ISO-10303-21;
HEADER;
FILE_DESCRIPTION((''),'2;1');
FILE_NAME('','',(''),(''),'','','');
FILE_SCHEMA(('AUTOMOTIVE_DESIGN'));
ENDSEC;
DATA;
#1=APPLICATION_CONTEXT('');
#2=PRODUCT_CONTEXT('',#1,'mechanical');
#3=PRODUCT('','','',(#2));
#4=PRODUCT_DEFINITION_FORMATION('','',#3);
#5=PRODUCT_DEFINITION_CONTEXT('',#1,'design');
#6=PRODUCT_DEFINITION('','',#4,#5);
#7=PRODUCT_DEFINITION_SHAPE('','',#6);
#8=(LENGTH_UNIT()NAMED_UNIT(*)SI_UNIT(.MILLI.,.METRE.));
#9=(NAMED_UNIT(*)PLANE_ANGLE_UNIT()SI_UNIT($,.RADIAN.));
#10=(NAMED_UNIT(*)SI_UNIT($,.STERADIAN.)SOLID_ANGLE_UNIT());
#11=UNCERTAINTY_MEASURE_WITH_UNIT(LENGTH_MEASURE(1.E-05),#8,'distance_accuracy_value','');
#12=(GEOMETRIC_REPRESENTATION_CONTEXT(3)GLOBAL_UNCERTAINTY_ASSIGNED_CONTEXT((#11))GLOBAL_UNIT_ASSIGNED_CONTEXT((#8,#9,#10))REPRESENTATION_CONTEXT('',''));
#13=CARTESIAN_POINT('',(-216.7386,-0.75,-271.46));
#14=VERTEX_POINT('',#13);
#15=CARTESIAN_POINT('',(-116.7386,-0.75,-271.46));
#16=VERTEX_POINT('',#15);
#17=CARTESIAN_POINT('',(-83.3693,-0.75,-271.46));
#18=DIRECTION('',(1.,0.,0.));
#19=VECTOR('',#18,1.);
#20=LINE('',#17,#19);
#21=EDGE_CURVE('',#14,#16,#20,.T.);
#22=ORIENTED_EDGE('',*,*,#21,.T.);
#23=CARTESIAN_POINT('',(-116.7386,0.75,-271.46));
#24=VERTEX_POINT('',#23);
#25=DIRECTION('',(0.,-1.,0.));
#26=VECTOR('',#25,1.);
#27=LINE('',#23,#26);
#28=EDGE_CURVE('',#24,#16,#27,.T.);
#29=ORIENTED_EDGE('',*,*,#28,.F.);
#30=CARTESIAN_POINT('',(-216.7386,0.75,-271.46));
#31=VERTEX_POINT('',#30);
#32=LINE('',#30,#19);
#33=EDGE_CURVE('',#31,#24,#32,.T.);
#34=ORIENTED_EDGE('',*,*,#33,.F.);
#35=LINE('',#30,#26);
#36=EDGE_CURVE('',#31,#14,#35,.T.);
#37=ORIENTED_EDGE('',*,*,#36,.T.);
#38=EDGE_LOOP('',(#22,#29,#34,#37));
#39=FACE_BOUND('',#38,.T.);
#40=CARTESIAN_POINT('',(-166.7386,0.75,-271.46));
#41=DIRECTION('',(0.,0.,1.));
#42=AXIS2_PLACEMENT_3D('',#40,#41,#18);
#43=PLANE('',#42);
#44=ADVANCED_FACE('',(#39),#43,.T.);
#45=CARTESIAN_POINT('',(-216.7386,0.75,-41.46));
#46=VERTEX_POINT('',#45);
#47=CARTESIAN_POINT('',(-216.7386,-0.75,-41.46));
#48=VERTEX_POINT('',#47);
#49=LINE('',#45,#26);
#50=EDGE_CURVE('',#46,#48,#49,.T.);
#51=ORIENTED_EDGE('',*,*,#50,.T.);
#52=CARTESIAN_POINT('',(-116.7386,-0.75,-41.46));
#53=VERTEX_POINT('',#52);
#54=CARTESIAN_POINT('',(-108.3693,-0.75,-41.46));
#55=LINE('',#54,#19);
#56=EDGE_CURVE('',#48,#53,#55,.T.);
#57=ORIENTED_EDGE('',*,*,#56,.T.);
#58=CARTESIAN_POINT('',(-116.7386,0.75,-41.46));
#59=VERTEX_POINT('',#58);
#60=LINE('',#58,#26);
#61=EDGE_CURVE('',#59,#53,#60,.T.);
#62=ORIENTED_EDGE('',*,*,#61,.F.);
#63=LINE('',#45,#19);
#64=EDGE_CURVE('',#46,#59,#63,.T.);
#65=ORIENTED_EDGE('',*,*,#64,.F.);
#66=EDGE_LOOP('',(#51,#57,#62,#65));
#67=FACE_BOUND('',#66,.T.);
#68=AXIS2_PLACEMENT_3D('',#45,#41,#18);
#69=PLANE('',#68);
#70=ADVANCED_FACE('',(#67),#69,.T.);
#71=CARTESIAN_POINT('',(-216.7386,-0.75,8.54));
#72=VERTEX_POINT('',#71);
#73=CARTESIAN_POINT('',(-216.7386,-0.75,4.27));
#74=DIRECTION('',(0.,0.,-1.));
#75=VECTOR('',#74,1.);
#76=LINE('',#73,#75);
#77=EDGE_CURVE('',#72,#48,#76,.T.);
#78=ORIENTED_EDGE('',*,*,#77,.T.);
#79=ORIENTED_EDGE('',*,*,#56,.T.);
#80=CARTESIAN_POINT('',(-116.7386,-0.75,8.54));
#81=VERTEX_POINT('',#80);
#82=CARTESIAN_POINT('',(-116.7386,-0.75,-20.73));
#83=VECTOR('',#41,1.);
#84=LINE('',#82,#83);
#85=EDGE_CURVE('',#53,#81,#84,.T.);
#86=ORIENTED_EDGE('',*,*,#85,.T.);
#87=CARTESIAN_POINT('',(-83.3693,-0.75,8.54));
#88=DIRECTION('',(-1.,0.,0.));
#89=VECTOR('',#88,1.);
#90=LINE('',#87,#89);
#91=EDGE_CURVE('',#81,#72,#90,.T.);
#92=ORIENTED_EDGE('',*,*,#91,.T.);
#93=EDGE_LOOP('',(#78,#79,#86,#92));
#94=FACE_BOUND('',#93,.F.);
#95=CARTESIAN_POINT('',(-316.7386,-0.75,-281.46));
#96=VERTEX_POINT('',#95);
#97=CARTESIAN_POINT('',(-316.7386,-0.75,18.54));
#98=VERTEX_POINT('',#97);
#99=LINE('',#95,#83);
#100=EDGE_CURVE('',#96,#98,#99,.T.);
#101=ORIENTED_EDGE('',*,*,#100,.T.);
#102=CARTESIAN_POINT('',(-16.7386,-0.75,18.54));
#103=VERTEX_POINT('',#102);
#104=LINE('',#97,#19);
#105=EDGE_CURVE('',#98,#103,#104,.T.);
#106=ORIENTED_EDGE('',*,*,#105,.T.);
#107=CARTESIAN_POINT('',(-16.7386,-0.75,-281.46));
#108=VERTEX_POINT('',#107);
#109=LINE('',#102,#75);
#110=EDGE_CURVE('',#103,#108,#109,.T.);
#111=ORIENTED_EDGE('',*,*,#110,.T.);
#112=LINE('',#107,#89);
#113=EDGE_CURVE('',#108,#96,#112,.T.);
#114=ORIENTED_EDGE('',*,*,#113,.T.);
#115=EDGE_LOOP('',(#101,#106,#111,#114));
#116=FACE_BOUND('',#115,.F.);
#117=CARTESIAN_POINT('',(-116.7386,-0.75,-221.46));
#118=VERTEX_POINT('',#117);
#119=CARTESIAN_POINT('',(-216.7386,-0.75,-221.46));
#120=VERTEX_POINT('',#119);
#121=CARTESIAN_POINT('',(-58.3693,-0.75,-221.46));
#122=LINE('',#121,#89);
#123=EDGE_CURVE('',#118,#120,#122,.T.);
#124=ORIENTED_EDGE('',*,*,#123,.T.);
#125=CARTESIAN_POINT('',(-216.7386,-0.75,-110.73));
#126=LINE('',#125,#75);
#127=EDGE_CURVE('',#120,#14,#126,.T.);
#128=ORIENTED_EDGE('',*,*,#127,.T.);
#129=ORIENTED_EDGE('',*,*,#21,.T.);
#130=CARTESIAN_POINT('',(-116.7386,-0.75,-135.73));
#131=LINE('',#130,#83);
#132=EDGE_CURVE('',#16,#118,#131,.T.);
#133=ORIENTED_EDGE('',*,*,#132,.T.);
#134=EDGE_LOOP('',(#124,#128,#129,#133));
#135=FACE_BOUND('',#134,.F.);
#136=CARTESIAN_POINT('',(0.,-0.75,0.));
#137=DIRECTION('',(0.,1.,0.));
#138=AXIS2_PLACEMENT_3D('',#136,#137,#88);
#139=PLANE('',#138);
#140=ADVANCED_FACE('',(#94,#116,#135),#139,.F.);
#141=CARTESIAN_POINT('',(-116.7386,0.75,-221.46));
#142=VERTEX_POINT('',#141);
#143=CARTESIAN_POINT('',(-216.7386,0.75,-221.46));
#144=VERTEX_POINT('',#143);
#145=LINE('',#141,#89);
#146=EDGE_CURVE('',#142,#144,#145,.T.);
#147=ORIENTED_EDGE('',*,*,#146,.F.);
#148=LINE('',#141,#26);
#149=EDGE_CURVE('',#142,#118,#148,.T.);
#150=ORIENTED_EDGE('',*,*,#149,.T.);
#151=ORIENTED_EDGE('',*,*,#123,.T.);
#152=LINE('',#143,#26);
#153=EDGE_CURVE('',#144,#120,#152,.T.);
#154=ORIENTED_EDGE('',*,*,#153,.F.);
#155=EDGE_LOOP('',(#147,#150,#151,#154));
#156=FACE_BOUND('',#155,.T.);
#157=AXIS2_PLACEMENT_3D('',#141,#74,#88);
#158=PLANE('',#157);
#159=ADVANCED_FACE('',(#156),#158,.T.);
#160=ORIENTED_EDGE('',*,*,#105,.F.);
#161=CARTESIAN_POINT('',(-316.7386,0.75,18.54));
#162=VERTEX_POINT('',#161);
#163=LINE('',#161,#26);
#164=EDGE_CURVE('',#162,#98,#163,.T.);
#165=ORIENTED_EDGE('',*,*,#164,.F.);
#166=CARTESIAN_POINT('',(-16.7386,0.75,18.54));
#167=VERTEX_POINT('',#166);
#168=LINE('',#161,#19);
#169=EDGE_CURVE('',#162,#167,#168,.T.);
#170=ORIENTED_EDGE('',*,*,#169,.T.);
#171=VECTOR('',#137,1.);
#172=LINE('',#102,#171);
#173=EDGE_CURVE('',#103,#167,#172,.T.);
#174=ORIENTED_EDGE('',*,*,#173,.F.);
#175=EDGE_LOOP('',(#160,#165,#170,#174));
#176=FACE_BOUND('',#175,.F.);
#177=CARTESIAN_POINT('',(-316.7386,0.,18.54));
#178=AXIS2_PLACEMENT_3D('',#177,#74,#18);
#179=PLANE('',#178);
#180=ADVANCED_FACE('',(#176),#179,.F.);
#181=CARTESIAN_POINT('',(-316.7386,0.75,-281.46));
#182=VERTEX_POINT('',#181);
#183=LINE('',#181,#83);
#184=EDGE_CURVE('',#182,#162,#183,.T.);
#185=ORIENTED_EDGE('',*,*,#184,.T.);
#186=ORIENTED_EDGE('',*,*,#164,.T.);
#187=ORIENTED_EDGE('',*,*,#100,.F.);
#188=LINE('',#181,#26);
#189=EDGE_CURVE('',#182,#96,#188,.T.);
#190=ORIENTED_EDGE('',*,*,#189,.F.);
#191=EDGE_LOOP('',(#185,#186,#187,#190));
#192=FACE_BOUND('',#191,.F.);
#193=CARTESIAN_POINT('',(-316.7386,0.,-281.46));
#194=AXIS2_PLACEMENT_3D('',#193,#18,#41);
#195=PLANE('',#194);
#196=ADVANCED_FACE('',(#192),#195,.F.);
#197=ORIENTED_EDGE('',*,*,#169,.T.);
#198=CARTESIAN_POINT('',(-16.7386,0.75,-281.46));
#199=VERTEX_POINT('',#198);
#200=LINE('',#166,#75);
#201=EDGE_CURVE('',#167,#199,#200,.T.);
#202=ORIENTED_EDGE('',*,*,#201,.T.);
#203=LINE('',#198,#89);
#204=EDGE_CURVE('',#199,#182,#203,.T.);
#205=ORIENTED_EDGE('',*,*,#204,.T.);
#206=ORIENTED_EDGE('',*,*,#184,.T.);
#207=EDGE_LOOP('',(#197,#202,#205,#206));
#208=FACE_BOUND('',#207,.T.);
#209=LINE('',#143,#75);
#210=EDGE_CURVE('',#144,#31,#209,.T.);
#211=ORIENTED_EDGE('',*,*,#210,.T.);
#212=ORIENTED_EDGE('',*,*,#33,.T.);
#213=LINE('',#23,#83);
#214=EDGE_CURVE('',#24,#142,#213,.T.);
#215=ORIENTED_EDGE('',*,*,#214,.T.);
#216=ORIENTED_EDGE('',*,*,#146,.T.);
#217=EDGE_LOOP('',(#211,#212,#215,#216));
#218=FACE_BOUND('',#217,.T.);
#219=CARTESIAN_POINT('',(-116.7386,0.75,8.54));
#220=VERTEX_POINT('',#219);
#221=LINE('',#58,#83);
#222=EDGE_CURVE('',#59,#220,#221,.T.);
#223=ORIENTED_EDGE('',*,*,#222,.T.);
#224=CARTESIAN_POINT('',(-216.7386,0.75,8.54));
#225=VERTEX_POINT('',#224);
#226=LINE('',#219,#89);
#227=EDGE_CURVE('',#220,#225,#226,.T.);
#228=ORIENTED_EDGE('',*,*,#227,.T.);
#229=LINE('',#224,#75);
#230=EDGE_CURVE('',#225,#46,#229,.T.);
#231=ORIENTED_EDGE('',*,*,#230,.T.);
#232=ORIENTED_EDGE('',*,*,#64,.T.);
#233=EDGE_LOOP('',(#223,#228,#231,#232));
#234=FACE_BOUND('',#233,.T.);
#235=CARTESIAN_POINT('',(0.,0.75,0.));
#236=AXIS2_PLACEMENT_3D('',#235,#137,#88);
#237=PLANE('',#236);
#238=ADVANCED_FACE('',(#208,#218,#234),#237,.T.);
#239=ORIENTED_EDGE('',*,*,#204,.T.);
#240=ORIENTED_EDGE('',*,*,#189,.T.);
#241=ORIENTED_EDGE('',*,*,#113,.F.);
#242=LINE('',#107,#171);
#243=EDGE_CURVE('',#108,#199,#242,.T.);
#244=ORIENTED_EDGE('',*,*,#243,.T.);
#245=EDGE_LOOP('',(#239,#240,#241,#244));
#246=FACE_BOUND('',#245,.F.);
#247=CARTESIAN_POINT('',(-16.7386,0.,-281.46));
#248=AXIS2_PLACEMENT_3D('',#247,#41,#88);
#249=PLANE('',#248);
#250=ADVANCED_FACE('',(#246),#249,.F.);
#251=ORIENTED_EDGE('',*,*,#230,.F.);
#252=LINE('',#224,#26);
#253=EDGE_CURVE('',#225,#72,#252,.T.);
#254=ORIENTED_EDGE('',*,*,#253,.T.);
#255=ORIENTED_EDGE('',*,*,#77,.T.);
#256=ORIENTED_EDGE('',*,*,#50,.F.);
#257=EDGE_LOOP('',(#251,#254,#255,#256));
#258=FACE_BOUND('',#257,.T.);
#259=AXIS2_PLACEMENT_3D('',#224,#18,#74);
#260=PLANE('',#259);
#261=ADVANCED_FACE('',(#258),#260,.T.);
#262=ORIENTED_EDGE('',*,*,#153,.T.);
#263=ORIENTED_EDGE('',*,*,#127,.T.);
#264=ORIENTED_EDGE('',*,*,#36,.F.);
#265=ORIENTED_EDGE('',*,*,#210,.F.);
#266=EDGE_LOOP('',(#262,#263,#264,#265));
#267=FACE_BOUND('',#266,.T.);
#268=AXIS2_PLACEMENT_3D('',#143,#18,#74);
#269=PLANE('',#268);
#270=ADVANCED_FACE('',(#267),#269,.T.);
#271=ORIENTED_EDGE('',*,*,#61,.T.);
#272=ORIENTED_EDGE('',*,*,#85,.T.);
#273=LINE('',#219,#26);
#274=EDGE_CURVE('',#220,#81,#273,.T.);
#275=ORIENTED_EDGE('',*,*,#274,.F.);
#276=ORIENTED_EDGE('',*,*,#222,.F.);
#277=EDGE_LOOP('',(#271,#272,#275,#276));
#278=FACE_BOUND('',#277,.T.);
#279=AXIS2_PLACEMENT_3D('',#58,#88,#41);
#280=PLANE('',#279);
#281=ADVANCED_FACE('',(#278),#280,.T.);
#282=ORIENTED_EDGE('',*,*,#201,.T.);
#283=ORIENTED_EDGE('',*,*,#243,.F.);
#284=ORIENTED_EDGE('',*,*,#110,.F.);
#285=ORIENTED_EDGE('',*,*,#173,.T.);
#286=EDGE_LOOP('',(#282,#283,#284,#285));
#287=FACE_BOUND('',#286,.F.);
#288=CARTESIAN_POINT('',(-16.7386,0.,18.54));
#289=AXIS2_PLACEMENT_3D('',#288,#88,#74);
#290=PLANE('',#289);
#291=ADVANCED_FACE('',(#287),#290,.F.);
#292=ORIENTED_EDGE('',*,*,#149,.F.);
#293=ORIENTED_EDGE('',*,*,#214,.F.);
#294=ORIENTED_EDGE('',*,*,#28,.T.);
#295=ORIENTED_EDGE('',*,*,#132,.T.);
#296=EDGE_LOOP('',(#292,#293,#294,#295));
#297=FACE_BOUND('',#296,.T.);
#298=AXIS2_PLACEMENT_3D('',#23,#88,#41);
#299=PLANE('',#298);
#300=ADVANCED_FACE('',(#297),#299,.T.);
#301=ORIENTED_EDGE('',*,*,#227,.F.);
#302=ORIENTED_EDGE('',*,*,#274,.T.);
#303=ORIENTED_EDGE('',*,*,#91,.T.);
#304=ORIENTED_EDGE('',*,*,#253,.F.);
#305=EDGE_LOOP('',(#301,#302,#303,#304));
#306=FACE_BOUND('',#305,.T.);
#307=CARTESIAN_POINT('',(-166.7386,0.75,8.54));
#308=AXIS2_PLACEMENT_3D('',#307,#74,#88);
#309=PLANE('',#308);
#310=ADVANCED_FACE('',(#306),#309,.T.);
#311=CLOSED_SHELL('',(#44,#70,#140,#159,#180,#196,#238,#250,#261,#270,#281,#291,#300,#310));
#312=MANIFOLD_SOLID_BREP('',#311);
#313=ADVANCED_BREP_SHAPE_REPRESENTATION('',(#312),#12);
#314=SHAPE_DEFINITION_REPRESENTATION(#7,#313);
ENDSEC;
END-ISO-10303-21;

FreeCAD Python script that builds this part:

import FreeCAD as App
import Part
import Sketcher
from FreeCAD import Vector
Q = App.Units.Quantity


def add_polygon(sketch, points):
    """Adds a closed chain of lines whose ends are joined by coincident constraints."""
    first, n = sketch.GeometryCount, len(points)
    for a, b in zip(points, points[1:] + points[:1]):
        sketch.addGeometry(Part.LineSegment(App.Vector(*a, 0), App.Vector(*b, 0)), False)
    for i in range(n):
        sketch.addConstraint(Sketcher.Constraint("Coincident", first + i, 2, first + (i + 1) % n, 1))

doc = App.newDocument("Part")
body = doc.addObject("PartDesign::Body", "Body")

sketch1 = doc.addObject("Sketcher::SketchObject", "Sketch")
body.addObject(sketch1)
sketch1.AttachmentSupport = (doc.XZ_Plane, [""])
sketch1.MapMode = "FlatFace"
add_polygon(sketch1, [(-317, 19), (-17, 19), (-17, -281), (-317, -281)])
sketch1.addConstraint([
    Sketcher.Constraint("Horizontal", 0),
    Sketcher.Constraint("Vertical", 1),
    Sketcher.Constraint("Horizontal", 2),
    Sketcher.Constraint("Vertical", 3),
    Sketcher.Constraint("Equal", 2, 1),
    Sketcher.Constraint("DistanceX", 0, 1, 0, 2, Q("300 mm")),
    Sketcher.Constraint("DistanceY", -1, 1, 0, 2, Q("18.54 mm")),
    Sketcher.Constraint("DistanceX", 0, 2, -1, 1, Q("16.7386 mm")),
])
pad1 = doc.addObject("PartDesign::Pad", "Pad")
body.addObject(pad1)
pad1.Profile = sketch1
pad1.Length = 1.5
pad1.Midplane = True

sketch2 = doc.addObject("Sketcher::SketchObject", "Sketch001")
body.addObject(sketch2)
sketch2.AttachmentSupport = (doc.XZ_Plane, [""])
sketch2.MapMode = "FlatFace"
sketch2.AttachmentOffset = App.Placement(Vector(0, 0, -0.75), App.Rotation())
add_polygon(sketch2, [(-217, 9), (-117, 9), (-117, -41), (-217, -41)])
add_polygon(sketch2, [(-117, -271), (-217, -271), (-217, -221), (-117, -221)])
sketch2.addConstraint([
    Sketcher.Constraint("Horizontal", 0),
    Sketcher.Constraint("Vertical", 1),
    Sketcher.Constraint("Horizontal", 2),
    Sketcher.Constraint("Vertical", 3),
    Sketcher.Constraint("Horizontal", 4),
    Sketcher.Constraint("Vertical", 5),
    Sketcher.Constraint("Horizontal", 6),
    Sketcher.Constraint("Vertical", 7),
    Sketcher.Constraint("Vertical", 3, 2, 4, 2),
    Sketcher.Constraint("Vertical", 1, 2, 6, 2),
    Sketcher.Constraint("Equal", 3, 5),
    Sketcher.Constraint("DistanceY", 1, 2, 1, 1, Q("50 mm")),
    Sketcher.Constraint("DistanceX", 0, 1, 0, 2, Q("100 mm")),
    Sketcher.Constraint("DistanceY", 4, 2, 2, 2, Q("230 mm")),
    Sketcher.Constraint("DistanceY", -1, 1, 0, 2, Q("8.54 mm")),
    Sketcher.Constraint("DistanceX", 0, 2, -1, 1, Q("116.7386 mm")),
])
pocket1 = doc.addObject("PartDesign::Pocket", "Pocket")
body.addObject(pocket1)
pocket1.Profile = sketch2
pocket1.Length = 4
pocket1.Reversed = True

doc.recompute()
